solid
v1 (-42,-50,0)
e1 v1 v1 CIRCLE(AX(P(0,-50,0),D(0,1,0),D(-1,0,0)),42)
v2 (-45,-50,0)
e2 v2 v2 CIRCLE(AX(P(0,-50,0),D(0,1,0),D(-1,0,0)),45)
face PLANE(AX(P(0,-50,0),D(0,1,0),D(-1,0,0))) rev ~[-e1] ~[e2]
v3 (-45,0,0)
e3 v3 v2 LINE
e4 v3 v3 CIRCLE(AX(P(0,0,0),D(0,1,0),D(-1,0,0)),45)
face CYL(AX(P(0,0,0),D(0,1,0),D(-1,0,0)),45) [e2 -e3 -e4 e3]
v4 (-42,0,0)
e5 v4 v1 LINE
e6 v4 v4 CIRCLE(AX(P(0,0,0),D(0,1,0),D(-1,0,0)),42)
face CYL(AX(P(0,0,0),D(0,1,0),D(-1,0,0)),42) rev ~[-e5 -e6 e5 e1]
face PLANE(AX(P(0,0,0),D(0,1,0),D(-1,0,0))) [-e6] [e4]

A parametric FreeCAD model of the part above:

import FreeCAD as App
import Part
import Sketcher
Q = App.Units.Quantity

doc = App.newDocument("Part")
body = doc.addObject("PartDesign::Body", "Body")

# Sketch on XZ plane
sketch1 = doc.addObject("Sketcher::SketchObject", "Sketch")
body.addObject(sketch1)
sketch1.AttachmentSupport = (doc.XZ_Plane, [""])
sketch1.MapMode = "FlatFace"
sketch1.addGeometry(Part.Circle(App.Vector(0, 0, 0), App.Vector(0, 0, 1), 45), False)
sketch1.addGeometry(Part.Circle(App.Vector(0, 0, 0), App.Vector(0, 0, 1), 42), False)
sketch1.addConstraint(Sketcher.Constraint("Coincident", 0, 3, -1, 1))
sketch1.addConstraint(Sketcher.Constraint("Coincident", 1, 3, -1, 1))
sketch1.addConstraint(Sketcher.Constraint("Diameter", 0, Q("90 mm")))
sketch1.addConstraint(Sketcher.Constraint("Diameter", 1, Q("84 mm")))
pad1 = doc.addObject("PartDesign::Pad", "Pad")
body.addObject(pad1)
pad1.Profile = sketch1
pad1.Length = 50

doc.recompute()
